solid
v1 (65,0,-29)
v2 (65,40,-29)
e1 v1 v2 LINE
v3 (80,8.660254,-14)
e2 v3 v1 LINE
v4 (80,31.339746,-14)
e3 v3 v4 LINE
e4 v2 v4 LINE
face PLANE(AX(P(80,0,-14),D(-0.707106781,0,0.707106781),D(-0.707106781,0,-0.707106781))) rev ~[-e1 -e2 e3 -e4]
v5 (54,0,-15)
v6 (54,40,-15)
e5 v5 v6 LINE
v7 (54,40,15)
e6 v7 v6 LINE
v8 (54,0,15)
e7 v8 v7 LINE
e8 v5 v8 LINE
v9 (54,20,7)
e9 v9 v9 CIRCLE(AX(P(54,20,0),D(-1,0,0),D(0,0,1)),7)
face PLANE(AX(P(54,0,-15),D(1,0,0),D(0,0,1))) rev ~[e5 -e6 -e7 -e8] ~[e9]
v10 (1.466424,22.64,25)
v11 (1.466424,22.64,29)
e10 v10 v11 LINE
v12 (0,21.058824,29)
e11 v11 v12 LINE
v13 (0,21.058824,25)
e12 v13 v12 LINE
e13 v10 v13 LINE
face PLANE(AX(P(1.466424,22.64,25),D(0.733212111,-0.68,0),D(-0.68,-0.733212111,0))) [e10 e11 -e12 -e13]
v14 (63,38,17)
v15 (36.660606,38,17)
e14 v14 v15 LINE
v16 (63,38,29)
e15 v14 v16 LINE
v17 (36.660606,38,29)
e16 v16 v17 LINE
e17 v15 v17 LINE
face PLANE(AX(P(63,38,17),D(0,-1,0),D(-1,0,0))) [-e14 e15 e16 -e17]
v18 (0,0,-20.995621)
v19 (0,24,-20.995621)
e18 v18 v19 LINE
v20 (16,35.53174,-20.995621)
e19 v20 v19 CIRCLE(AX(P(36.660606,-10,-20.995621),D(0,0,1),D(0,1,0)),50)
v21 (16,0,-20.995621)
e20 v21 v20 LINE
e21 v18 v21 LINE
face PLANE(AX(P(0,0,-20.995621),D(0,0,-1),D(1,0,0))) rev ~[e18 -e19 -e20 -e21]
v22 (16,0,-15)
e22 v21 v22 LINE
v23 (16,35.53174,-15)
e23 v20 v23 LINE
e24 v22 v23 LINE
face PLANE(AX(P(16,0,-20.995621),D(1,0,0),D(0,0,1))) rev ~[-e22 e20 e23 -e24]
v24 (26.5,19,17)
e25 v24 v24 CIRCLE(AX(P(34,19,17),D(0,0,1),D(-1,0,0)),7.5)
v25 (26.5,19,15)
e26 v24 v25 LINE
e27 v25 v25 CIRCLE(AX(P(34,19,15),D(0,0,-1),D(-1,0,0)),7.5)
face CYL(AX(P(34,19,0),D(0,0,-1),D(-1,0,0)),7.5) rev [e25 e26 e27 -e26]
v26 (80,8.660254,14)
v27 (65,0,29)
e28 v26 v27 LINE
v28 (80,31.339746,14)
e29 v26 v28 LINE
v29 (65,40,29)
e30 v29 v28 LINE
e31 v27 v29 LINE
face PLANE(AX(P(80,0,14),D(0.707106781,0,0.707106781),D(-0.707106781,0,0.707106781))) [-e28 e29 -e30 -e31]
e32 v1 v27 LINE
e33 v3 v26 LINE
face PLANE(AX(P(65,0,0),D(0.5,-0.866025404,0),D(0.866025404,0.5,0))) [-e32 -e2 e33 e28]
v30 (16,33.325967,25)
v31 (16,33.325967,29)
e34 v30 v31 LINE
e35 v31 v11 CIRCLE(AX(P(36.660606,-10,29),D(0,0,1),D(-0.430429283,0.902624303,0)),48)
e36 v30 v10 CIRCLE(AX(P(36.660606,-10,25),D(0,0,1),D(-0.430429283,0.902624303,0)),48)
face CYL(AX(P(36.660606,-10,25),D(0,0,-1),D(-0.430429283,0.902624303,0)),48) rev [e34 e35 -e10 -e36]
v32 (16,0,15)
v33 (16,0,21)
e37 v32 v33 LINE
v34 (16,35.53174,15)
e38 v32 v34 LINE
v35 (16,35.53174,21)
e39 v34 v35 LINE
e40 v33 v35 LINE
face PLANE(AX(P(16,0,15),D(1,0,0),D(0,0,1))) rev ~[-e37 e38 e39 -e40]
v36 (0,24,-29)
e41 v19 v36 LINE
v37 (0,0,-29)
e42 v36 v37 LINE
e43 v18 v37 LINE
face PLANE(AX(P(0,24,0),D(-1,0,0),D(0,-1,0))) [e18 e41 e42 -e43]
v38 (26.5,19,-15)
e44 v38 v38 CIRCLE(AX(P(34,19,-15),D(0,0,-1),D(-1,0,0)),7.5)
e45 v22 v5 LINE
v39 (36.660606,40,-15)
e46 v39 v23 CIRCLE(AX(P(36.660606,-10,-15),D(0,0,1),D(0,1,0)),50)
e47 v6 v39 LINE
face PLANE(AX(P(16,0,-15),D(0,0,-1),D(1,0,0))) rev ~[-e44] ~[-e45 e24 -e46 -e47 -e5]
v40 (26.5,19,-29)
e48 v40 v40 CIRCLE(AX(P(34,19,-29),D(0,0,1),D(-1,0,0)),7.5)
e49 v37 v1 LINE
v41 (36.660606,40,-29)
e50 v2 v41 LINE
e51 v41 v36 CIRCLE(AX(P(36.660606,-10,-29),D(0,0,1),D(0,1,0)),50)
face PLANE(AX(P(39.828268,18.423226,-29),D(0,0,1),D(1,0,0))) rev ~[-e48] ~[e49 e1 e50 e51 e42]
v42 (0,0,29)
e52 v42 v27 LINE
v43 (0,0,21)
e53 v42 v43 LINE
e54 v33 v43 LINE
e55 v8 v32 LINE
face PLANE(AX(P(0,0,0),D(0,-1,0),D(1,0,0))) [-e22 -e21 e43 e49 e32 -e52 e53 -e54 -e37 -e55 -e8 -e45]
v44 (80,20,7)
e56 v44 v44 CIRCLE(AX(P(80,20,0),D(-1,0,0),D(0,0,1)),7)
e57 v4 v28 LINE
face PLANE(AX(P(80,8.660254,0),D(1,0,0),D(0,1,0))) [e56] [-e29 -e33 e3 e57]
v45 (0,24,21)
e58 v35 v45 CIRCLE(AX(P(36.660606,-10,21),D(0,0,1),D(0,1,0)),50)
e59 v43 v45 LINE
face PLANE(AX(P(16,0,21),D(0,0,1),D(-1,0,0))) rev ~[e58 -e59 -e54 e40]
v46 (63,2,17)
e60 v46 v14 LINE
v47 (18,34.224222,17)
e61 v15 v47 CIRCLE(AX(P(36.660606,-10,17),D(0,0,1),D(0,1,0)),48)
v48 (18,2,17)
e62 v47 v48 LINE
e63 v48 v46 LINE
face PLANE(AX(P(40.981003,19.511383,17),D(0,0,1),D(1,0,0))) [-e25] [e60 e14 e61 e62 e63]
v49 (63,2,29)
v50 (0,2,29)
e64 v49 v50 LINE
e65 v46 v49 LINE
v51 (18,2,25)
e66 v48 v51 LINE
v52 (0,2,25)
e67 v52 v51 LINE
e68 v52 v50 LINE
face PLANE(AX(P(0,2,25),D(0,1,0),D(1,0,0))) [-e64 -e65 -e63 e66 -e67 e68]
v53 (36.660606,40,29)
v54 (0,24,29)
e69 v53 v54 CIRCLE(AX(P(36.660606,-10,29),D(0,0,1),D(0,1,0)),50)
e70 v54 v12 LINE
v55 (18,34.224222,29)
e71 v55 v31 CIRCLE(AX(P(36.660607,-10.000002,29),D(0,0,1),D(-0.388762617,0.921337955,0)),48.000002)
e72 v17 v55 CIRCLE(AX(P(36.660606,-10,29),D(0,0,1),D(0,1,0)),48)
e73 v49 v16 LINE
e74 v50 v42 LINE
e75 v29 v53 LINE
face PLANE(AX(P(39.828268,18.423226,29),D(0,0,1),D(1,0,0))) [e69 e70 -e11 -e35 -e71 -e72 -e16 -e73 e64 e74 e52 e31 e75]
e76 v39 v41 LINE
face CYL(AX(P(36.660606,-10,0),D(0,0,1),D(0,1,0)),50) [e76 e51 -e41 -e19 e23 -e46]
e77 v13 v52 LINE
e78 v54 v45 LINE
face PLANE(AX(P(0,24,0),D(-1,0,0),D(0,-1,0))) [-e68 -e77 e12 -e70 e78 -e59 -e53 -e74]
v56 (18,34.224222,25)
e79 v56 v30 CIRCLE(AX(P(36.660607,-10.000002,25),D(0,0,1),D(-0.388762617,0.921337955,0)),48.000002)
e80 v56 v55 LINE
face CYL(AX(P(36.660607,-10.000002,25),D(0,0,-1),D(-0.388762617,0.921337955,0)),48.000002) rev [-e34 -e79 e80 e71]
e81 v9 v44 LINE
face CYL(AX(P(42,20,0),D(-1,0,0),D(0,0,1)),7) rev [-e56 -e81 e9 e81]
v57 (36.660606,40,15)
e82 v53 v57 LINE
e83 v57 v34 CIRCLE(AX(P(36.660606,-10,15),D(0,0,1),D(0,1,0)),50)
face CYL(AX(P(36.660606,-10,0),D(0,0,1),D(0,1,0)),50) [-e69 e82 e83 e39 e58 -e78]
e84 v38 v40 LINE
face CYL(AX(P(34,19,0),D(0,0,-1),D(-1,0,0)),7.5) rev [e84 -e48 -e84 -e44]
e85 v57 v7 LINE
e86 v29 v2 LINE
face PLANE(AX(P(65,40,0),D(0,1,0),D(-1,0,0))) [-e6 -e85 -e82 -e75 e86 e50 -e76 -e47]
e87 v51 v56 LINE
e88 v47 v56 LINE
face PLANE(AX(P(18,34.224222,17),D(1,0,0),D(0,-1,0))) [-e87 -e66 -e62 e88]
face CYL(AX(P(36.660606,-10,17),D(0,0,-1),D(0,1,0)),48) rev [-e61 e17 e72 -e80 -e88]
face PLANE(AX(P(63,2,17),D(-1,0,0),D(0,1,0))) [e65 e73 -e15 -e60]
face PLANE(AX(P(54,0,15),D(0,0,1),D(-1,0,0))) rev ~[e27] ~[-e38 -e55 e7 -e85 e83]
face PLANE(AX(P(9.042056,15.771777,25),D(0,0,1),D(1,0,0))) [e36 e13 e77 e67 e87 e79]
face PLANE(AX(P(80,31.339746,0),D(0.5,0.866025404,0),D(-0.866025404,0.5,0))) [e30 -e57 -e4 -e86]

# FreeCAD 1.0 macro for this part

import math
import FreeCAD as App
import Part
import Sketcher
from FreeCAD import Vector
Q = App.Units.Quantity


def add_polygon(sketch, points):
    """Adds a closed chain of lines whose ends are joined by coincident constraints."""
    first, n = sketch.GeometryCount, len(points)
    for a, b in zip(points, points[1:] + points[:1]):
        sketch.addGeometry(Part.LineSegment(App.Vector(*a, 0), App.Vector(*b, 0)), False)
    for i in range(n):
        sketch.addConstraint(Sketcher.Constraint("Coincident", first + i, 2, first + (i + 1) % n, 1))

doc = App.newDocument("Part")
params = doc.addObject("Spreadsheet::Sheet", "Params")
for row, (alias, value) in enumerate([
    ("sketch1_diameter", "15 mm"),
    ("sketch1_radius", "50 mm"),
    ("sketch1_width", "65 mm"),
    ("sketch1_height", "24 mm"),
    ("pad1_length", "58 mm"),
    ("sketch2_width", "16 mm"),
    ("sketch2_width2", "38 mm"),
    ("sketch2_height", "6 mm"),
    ("sketch2_height2", "30 mm"),
    ("pocket1_length", "65 mm"),
    ("sketch3_diameter", "14 mm"),
    ("sketch4_width", "15 mm"),
    ("pocket3_length", "40 mm"),
    ("sketch5_diameter", "15 mm"),
    ("sketch5_radius", "48 mm"),
    ("sketch5_width", "45 mm"),
    ("sketch5_height", "36 mm"),
    ("pocket4_length", "12 mm"),
    ("sketch6_radius", "48 mm"),
    ("sketch6_width", "18 mm"),
    ("pocket5_length", "4 mm"),
], start=1):
    params.set(f"A{row}", alias)
    params.set(f"B{row}", "=" + value)
    params.setAlias(f"B{row}", alias)

body = doc.addObject("PartDesign::Body", "Body")

# Sketch on XY plane
sketch1 = body.newObject("Sketcher::SketchObject", "Sketch")
sketch1.AttachmentSupport = (doc.getObject("XY_Plane"), [""])
sketch1.MapMode = "FlatFace"
sketch1.addGeometry([
    Part.LineSegment(Vector(0, 0, 0), Vector(65, 0, 0)),  # 0
    Part.LineSegment(Vector(65, 0, 0), Vector(80, 8.660254, 0)),  # 1
    Part.LineSegment(Vector(80, 8.660254, 0), Vector(80, 31.339746, 0)),  # 2
    Part.LineSegment(Vector(80, 31.339746, 0), Vector(65, 40, 0)),  # 3
    Part.LineSegment(Vector(65, 40, 0), Vector(36.660606, 40, 0)),  # 4
    Part.ArcOfCircle(Part.Circle(Vector(36.660606, -10, 0), Vector(0, 0, 1), 50), math.radians(90), math.radians(137.156357)),  # 5
    Part.LineSegment(Vector(0, 24, 0), Vector(0, 0, 0)),  # 6
    Part.Circle(Vector(34, 19, 0), Vector(0, 0, 1), 7.5),  # 7
], False)
sketch1.addConstraint([
    Sketcher.Constraint("Coincident", 0, 2, 1, 1),
    Sketcher.Constraint("Coincident", 1, 2, 2, 1),
    Sketcher.Constraint("Coincident", 2, 2, 3, 1),
    Sketcher.Constraint("Coincident", 3, 2, 4, 1),
    Sketcher.Constraint("Tangent", 4, 2, 5, 1),
    Sketcher.Constraint("Coincident", 5, 2, 6, 1),
    Sketcher.Constraint("Coincident", 6, 2, 0, 1),
    Sketcher.Constraint("Horizontal", 0),
    Sketcher.Constraint("Vertical", 2),
    Sketcher.Constraint("Horizontal", 4),
    Sketcher.Constraint("Vertical", 6),
    Sketcher.Constraint("Coincident", 6, 2, -1, 1),
    Sketcher.Constraint("Vertical", 0, 2, 3, 2),
    Sketcher.Constraint("Equal", 1, 3),
    Sketcher.Constraint("Diameter", 7, Q("15 mm")),
    Sketcher.Constraint("Radius", 5, Q("50 mm")),
    Sketcher.Constraint("DistanceX", 0, 1, 0, 2, Q("65 mm")),
    Sketcher.Constraint("DistanceY", 6, 2, 6, 1, Q("24 mm")),
    Sketcher.Constraint("Angle", 1, Q("30 deg")),
    Sketcher.Constraint("DistanceY", 5, 3, -1, 1, Q("10 mm")),
    Sketcher.Constraint("DistanceX", -1, 1, 7, 3, Q("34 mm")),
    Sketcher.Constraint("DistanceY", -1, 1, 7, 3, Q("19 mm")),
    Sketcher.Constraint("DistanceX", -1, 1, 1, 2, Q("80 mm")),
])
sketch1.setExpression("Constraints[14]", "Params.sketch1_diameter")
sketch1.setExpression("Constraints[15]", "Params.sketch1_radius")
sketch1.setExpression("Constraints[16]", "Params.sketch1_width")
sketch1.setExpression("Constraints[17]", "Params.sketch1_height")
pad1 = body.newObject("PartDesign::Pad", "Pad")
pad1.Profile = sketch1
pad1.setExpression("Length", "Params.pad1_length")
pad1.Midplane = True

# Sketch on XZ plane
sketch2 = body.newObject("Sketcher::SketchObject", "Sketch001")
sketch2.AttachmentSupport = (doc.getObject("XZ_Plane"), [""])
sketch2.MapMode = "FlatFace"
add_polygon(sketch2, [(16, -20.995621), (0, -20.995621), (0, 21), (16, 21), (16, 15), (54, 15), (54, -15), (16, -15)])  # lines 0-7
sketch2.addConstraint([
    Sketcher.Constraint("Horizontal", 0),
    Sketcher.Constraint("Vertical", 1),
    Sketcher.Constraint("Horizontal", 2),
    Sketcher.Constraint("Vertical", 3),
    Sketcher.Constraint("Horizontal", 4),
    Sketcher.Constraint("Vertical", 5),
    Sketcher.Constraint("Horizontal", 6),
    Sketcher.Constraint("Vertical", 7),
    Sketcher.Constraint("Symmetric", 3, 2, 6, 2, -1),
    Sketcher.Constraint("PointOnObject", 0, 2, -2),
    Sketcher.Constraint("DistanceX", 0, 2, 0, 1, Q("16 mm")),
    Sketcher.Constraint("DistanceX", 4, 1, 4, 2, Q("38 mm")),
    Sketcher.Constraint("DistanceY", 3, 2, 3, 1, Q("6 mm")),
    Sketcher.Constraint("DistanceY", 5, 2, 5, 1, Q("30 mm")),
    Sketcher.Constraint("DistanceY", 1, 1, 1, 2, Q("41.995621 mm")),
])
sketch2.setExpression("Constraints[18]", "Params.sketch2_width")
sketch2.setExpression("Constraints[19]", "Params.sketch2_width2")
sketch2.setExpression("Constraints[20]", "Params.sketch2_height")
sketch2.setExpression("Constraints[21]", "Params.sketch2_height2")
pocket1 = body.newObject("PartDesign::Pocket", "Pocket")
pocket1.Profile = sketch2
pocket1.setExpression("Length", "Params.pocket1_length")

# Sketch on YZ plane
sketch3 = body.newObject("Sketcher::SketchObject", "Sketch002")
sketch3.AttachmentSupport = (doc.getObject("YZ_Plane"), [""])
sketch3.MapMode = "FlatFace"
sketch3.AttachmentOffset = App.Placement(Vector(0, 0, 80), App.Rotation())
sketch3.addGeometry(Part.Circle(Vector(20, 0, 0), Vector(0, 0, 1), 7), False)
sketch3.addConstraint([
    Sketcher.Constraint("PointOnObject", 0, 3, -1),
    Sketcher.Constraint("Diameter", 0, Q("14 mm")),
    Sketcher.Constraint("DistanceX", -1, 1, 0, 3, Q("20 mm")),
])
sketch3.setExpression("Constraints[1]", "Params.sketch3_diameter")
pocket2 = body.newObject("PartDesign::Pocket", "Pocket001")
pocket2.Profile = sketch3
pocket2.Type = "ThroughAll"
pocket2.Midplane = True

# Sketch on XZ plane
sketch4 = body.newObject("Sketcher::SketchObject", "Sketch003")
sketch4.AttachmentSupport = (doc.getObject("XZ_Plane"), [""])
sketch4.MapMode = "FlatFace"
add_polygon(sketch4, [(80, -29), (65, -29), (80, -14)])  # lines 0-2
add_polygon(sketch4, [(65, 29), (80, 29), (80, 14)])  # lines 3-5
sketch4.addConstraint([
    Sketcher.Constraint("Horizontal", 0),
    Sketcher.Constraint("Vertical", 2),
    Sketcher.Constraint("Horizontal", 3),
    Sketcher.Constraint("Vertical", 4),
    Sketcher.Constraint("Symmetric", 2, 2, 3, 2, -1),
    Sketcher.Constraint("Perpendicular", 1, 5),
    Sketcher.Constraint("Vertical", 0, 2, 5, 2),
    Sketcher.Constraint("Equal", 3, 2),
    Sketcher.Constraint("DistanceX", 0, 2, 0, 1, Q("15 mm")),
    Sketcher.Constraint("DistanceX", -1, 1, 0, 2, Q("65 mm")),
    Sketcher.Constraint("DistanceY", 0, 2, -1, 1, Q("29 mm")),
])
sketch4.setExpression("Constraints[14]", "Params.sketch4_width")
pocket3 = body.newObject("PartDesign::Pocket", "Pocket002")
pocket3.Profile = sketch4
pocket3.setExpression("Length", "Params.pocket3_length")

# Sketch on XY plane
sketch5 = body.newObject("Sketcher::SketchObject", "Sketch004")
sketch5.AttachmentSupport = (doc.getObject("XY_Plane"), [""])
sketch5.MapMode = "FlatFace"
sketch5.AttachmentOffset = App.Placement(Vector(0, 0, 17), App.Rotation())
sketch5.addGeometry([
    Part.LineSegment(Vector(18, 34.224222, 0), Vector(18, 2, 0)),  # 0
    Part.LineSegment(Vector(18, 2, 0), Vector(63, 2, 0)),  # 1
    Part.LineSegment(Vector(63, 2, 0), Vector(63, 38, 0)),  # 2
    Part.LineSegment(Vector(63, 38, 0), Vector(36.660606, 38, 0)),  # 3
    Part.ArcOfCircle(Part.Circle(Vector(36.660606, -10, 0), Vector(0, 0, 1), 48), math.radians(90), math.radians(112.877528)),  # 4
    Part.Circle(Vector(34, 19, 0), Vector(0, 0, 1), 7.5),  # 5
], False)
sketch5.addConstraint([
    Sketcher.Constraint("Coincident", 0, 2, 1, 1),
    Sketcher.Constraint("Coincident", 1, 2, 2, 1),
    Sketcher.Constraint("Coincident", 2, 2, 3, 1),
    Sketcher.Constraint("Tangent", 3, 2, 4, 1),
    Sketcher.Constraint("Coincident", 4, 2, 0, 1),
    Sketcher.Constraint("Vertical", 0),
    Sketcher.Constraint("Horizontal", 1),
    Sketcher.Constraint("Vertical", 2),
    Sketcher.Constraint("Horizontal", 3),
    Sketcher.Constraint("Diameter", 5, Q("15 mm")),
    Sketcher.Constraint("Radius", 4, Q("48 mm")),
    Sketcher.Constraint("DistanceX", 1, 1, 1, 2, Q("45 mm")),
    Sketcher.Constraint("DistanceY", 2, 1, 2, 2, Q("36 mm")),
    Sketcher.Constraint("DistanceY", 4, 3, -1, 1, Q("10 mm")),
    Sketcher.Constraint("DistanceX", -1, 1, 5, 3, Q("34 mm")),
    Sketcher.Constraint("DistanceY", -1, 1, 5, 3, Q("19 mm")),
    Sketcher.Constraint("DistanceX", -1, 1, 0, 2, Q("18 mm")),
    Sketcher.Constraint("DistanceY", 0, 2, 0, 1, Q("32.224222 mm")),
])
sketch5.setExpression("Constraints[9]", "Params.sketch5_diameter")
sketch5.setExpression("Constraints[10]", "Params.sketch5_radius")
sketch5.setExpression("Constraints[11]", "Params.sketch5_width")
sketch5.setExpression("Constraints[12]", "Params.sketch5_height")
pocket4 = body.newObject("PartDesign::Pocket", "Pocket003")
pocket4.Profile = sketch5
pocket4.setExpression("Length", "Params.pocket4_length")
pocket4.Reversed = True

# Sketch on XY plane
sketch6 = body.newObject("Sketcher::SketchObject", "Sketch005")
sketch6.AttachmentSupport = (doc.getObject("XY_Plane"), [""])
sketch6.MapMode = "FlatFace"
sketch6.AttachmentOffset = App.Placement(Vector(0, 0, 25), App.Rotation())
sketch6.addGeometry([
    Part.LineSegment(Vector(0, 2, 0), Vector(18, 2, 0)),  # 0
    Part.LineSegment(Vector(18, 2, 0), Vector(18, 34.224222, 0)),  # 1
    Part.ArcOfCircle(Part.Circle(Vector(36.660607, -10.000002, 0), Vector(0, 0, 1), 48.000002), math.radians(112.877528), math.radians(115.494807)),  # 2
    Part.ArcOfCircle(Part.Circle(Vector(36.660606, -10, 0), Vector(0, 0, 1), 48), math.radians(115.494807), math.radians(137.156357)),  # 3
    Part.LineSegment(Vector(1.466424, 22.64, 0), Vector(0, 21.058824, 0)),  # 4
    Part.LineSegment(Vector(0, 21.058824, 0), Vector(0, 2, 0)),  # 5
], False)
sketch6.addConstraint([
    Sketcher.Constraint("Coincident", 0, 2, 1, 1),
    Sketcher.Constraint("Coincident", 1, 2, 2, 1),
    Sketcher.Constraint("Tangent", 2, 2, 3, 1),
    Sketcher.Constraint("Tangent", 3, 2, 4, 1),
    Sketcher.Constraint("Coincident", 4, 2, 5, 1),
    Sketcher.Constraint("Coincident", 5, 2, 0, 1),
    Sketcher.Constraint("Horizontal", 0),
    Sketcher.Constraint("Vertical", 1),
    Sketcher.Constraint("Vertical", 5),
    Sketcher.Constraint("PointOnObject", 4, 2, -2),
    Sketcher.Constraint("Radius", 3, Q("48 mm")),
    Sketcher.Constraint("DistanceX", 0, 1, 0, 2, Q("18 mm")),
    Sketcher.Constraint("DistanceY", 3, 3, -1, 1, Q("10 mm")),
    Sketcher.Constraint("DistanceY", -1, 1, 0, 2, Q("2 mm")),
    Sketcher.Constraint("DistanceX", -1, 1, 2, 2, Q("16 mm")),
    Sketcher.Constraint("DistanceY", -1, 1, 3, 2, Q("22.64 mm")),
    Sketcher.Constraint("Radius", 2, Q("48.000002 mm")),
    Sketcher.Constraint("DistanceY", 1, 1, 1, 2, Q("32.224222 mm")),
])
sketch6.setExpression("Constraints[10]", "Params.sketch6_radius")
sketch6.setExpression("Constraints[11]", "Params.sketch6_width")
pocket5 = body.newObject("PartDesign::Pocket", "Pocket004")
pocket5.Profile = sketch6
pocket5.setExpression("Length", "Params.pocket5_length")
pocket5.Reversed = True

doc.recompute()
